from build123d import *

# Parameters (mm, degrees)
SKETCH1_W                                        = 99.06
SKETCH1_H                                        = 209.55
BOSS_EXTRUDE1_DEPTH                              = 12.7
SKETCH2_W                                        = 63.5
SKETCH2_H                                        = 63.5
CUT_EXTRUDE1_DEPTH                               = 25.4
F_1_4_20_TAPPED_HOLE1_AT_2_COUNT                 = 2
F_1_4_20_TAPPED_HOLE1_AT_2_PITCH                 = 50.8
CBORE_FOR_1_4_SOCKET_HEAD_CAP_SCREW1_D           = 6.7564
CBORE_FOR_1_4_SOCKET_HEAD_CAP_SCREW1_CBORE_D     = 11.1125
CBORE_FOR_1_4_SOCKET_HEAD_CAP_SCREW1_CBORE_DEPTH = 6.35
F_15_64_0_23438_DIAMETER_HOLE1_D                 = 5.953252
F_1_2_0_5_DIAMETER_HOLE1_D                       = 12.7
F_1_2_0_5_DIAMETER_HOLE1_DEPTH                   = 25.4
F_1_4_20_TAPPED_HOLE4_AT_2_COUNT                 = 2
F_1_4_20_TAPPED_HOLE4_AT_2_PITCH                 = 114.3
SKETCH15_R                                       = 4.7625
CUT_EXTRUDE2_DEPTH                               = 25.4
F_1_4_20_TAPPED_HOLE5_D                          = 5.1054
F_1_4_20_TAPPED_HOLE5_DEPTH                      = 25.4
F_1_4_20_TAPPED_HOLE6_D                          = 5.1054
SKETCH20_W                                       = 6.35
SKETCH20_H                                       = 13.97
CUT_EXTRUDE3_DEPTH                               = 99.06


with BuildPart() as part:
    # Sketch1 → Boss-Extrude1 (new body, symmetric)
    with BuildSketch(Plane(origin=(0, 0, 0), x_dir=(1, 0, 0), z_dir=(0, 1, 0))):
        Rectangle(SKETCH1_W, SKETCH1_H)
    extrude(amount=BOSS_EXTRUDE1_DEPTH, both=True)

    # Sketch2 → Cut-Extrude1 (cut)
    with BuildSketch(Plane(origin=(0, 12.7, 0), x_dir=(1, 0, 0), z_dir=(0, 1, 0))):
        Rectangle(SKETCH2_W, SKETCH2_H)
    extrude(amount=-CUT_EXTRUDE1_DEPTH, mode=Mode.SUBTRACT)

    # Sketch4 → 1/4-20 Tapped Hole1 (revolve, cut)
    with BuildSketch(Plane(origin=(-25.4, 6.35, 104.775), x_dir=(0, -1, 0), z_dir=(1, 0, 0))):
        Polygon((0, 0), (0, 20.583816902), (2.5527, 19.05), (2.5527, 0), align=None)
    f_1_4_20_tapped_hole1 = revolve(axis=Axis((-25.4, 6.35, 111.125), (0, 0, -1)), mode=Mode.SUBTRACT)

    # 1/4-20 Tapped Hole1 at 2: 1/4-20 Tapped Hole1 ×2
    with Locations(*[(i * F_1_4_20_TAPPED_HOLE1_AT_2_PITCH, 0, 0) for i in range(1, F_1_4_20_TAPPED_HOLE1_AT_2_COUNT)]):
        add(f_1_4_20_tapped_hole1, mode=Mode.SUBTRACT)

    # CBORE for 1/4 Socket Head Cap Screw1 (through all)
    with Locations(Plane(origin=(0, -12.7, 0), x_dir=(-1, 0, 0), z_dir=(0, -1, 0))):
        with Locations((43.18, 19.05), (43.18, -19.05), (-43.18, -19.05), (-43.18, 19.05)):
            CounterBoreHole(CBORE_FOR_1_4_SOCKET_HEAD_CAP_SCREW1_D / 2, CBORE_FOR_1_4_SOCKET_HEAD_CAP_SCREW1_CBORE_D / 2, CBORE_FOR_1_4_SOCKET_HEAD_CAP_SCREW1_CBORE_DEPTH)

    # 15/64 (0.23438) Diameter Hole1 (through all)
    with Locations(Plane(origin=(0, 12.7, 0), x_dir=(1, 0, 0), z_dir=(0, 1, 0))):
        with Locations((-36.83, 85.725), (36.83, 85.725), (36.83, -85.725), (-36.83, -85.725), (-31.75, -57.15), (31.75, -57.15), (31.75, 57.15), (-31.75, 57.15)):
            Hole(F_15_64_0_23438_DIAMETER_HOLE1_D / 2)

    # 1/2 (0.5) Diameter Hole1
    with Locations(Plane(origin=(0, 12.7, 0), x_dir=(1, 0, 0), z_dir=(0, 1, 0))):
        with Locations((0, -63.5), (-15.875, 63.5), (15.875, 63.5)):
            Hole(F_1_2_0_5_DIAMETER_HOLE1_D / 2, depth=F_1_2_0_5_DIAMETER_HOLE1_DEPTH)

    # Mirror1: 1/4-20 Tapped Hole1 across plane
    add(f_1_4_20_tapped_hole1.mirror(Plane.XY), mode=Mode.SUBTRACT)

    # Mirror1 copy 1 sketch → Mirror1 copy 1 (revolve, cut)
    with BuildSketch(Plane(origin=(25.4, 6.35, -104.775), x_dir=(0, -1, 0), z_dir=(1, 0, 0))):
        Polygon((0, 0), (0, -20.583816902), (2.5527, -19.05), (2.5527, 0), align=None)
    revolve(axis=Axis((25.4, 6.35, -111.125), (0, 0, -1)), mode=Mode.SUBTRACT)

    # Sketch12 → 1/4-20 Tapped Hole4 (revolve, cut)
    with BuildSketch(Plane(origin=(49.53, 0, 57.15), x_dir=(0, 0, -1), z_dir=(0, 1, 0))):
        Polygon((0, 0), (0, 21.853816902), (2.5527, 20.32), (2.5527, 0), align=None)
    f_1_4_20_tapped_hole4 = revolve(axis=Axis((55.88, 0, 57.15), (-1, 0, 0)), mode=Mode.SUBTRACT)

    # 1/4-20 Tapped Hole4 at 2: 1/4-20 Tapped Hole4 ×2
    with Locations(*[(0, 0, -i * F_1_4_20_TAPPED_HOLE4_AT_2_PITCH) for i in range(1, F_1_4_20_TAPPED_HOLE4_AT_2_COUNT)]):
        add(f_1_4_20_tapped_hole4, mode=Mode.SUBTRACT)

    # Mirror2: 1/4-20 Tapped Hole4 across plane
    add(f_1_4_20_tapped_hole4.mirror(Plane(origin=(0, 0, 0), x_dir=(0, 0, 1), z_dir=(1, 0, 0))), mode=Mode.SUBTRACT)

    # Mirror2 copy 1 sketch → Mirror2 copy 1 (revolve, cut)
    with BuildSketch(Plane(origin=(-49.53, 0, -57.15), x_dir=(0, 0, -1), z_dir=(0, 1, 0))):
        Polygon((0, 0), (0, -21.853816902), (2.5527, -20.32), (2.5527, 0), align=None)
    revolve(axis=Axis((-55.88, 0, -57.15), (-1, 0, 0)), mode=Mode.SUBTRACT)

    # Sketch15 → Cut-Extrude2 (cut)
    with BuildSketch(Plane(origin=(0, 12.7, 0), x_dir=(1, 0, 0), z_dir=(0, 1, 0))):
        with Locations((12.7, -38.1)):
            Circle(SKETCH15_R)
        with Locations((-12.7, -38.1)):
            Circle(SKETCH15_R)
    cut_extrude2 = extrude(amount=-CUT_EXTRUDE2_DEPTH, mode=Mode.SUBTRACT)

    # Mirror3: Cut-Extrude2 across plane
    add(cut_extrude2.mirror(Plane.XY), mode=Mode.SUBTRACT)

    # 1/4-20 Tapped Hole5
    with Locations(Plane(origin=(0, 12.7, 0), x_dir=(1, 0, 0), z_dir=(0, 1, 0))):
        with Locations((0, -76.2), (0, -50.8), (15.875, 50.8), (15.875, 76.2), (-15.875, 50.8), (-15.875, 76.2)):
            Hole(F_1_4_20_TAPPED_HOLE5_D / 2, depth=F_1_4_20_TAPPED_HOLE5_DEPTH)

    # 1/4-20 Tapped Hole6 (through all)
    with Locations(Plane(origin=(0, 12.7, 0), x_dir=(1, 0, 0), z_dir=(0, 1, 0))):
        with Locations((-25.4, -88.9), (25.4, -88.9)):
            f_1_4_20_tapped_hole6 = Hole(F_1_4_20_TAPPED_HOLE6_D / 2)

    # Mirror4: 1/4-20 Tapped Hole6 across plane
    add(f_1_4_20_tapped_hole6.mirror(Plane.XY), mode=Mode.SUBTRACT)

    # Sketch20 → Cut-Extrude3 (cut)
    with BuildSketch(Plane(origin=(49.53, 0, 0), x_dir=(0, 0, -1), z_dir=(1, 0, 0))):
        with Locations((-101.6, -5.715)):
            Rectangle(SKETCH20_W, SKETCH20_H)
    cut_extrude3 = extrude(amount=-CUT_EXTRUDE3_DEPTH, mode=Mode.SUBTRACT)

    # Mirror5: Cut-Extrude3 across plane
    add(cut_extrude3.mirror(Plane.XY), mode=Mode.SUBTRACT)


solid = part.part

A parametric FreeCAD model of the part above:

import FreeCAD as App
import Part
import Sketcher
from FreeCAD import Vector
Q = App.Units.Quantity


def add_polygon(sketch, points):
    """Adds a closed chain of lines whose ends are joined by coincident constraints."""
    first, n = sketch.GeometryCount, len(points)
    for a, b in zip(points, points[1:] + points[:1]):
        sketch.addGeometry(Part.LineSegment(App.Vector(*a, 0), App.Vector(*b, 0)), False)
    for i in range(n):
        sketch.addConstraint(Sketcher.Constraint("Coincident", first + i, 2, first + (i + 1) % n, 1))

doc = App.newDocument("Part")
body = doc.addObject("PartDesign::Body", "Body")

# Sketch on XZ plane
sketch1 = body.newObject("Sketcher::SketchObject", "Sketch")
sketch1.AttachmentSupport = (doc.getObject("XZ_Plane"), [""])
sketch1.MapMode = "FlatFace"
add_polygon(sketch1, [(-50, -105), (-50, 105), (50, 105), (50, -105)])  # lines 0-3
sketch1.addConstraint(Sketcher.Constraint("Vertical", 0))
sketch1.addConstraint(Sketcher.Constraint("Horizontal", 1))
sketch1.addConstraint(Sketcher.Constraint("Vertical", 2))
sketch1.addConstraint(Sketcher.Constraint("Horizontal", 3))
sketch1.addConstraint(Sketcher.Constraint("Symmetric", 0, 2, 2, 2, -1, 1))
sketch1.addConstraint(Sketcher.Constraint("DistanceX", 1, 1, 1, 2, Q("3.9 in")))
sketch1.addConstraint(Sketcher.Constraint("DistanceY", 0, 1, 0, 2, Q("8.25 in")))
pad1 = body.newObject("PartDesign::Pad", "Pad")
pad1.Profile = sketch1
pad1.Length = Q("1 in")
pad1.Midplane = True

# Sketch on XZ plane
sketch2 = body.newObject("Sketcher::SketchObject", "Sketch001")
sketch2.AttachmentSupport = (doc.getObject("XZ_Plane"), [""])
sketch2.MapMode = "FlatFace"
sketch2.AttachmentOffset = App.Placement(Vector(0, 0, -0.5 * 25.4), App.Rotation())
add_polygon(sketch2, [(-32, -32), (-32, 32), (32, 32), (32, -32)])  # lines 0-3
sketch2.addConstraint(Sketcher.Constraint("Vertical", 0))
sketch2.addConstraint(Sketcher.Constraint("Horizontal", 1))
sketch2.addConstraint(Sketcher.Constraint("Vertical", 2))
sketch2.addConstraint(Sketcher.Constraint("Horizontal", 3))
sketch2.addConstraint(Sketcher.Constraint("Symmetric", 0, 2, 2, 2, -1, 1))
sketch2.addConstraint(Sketcher.Constraint("Equal", 3, 0))
sketch2.addConstraint(Sketcher.Constraint("DistanceX", 1, 1, 1, 2, Q("2.5 in")))
pocket1 = body.newObject("PartDesign::Pocket", "Pocket")
pocket1.Profile = sketch2
pocket1.Length = Q("1 in")
pocket1.Reversed = True

# Sketch on YZ plane
sketch3 = body.newObject("Sketcher::SketchObject", "Sketch002")
sketch3.AttachmentSupport = (doc.getObject("YZ_Plane"), [""])
sketch3.MapMode = "FlatFace"
sketch3.AttachmentOffset = App.Placement(Vector(0, 0, -1 * 25.4), App.Rotation())
add_polygon(sketch3, [(6.3, 84.2), (6.3, 104.8), (3.8, 104.8), (3.8, 85.7)])  # lines 0-3
sketch3.addGeometry(Part.LineSegment(Vector(6.3, 104.8, 0), Vector(6.3, 84.2, 0)), True)  # axis
sketch3.addConstraint(Sketcher.Constraint("Vertical", 0))
sketch3.addConstraint(Sketcher.Constraint("Horizontal", 1))
sketch3.addConstraint(Sketcher.Constraint("Vertical", 2))
sketch3.addConstraint(Sketcher.Constraint("Vertical", 4))
sketch3.addConstraint(Sketcher.Constraint("Coincident", 4, 1, 0, 2))
sketch3.addConstraint(Sketcher.Constraint("Equal", 0, 4))
sketch3.addConstraint(Sketcher.Constraint("Angle", 3, Q("-31 deg")))
sketch3.addConstraint(Sketcher.Constraint("DistanceY", 2, 2, 2, 1, Q("0.75 in")))
sketch3.addConstraint(Sketcher.Constraint("DistanceX", -1, 1, 0, 2, Q("0.25 in")))
sketch3.addConstraint(Sketcher.Constraint("DistanceX", 1, 2, 1, 1, Q("0.1005 in")))
sketch3.addConstraint(Sketcher.Constraint("DistanceY", -1, 1, 0, 2, Q("4.125 in")))
groove = body.newObject("PartDesign::Groove", "Groove")
groove.Profile = sketch3
groove.ReferenceAxis = (sketch3, ["Axis0"])
groove.Angle = 360
doc.recompute()

linearpattern = body.newObject("PartDesign::LinearPattern", "LinearPattern")
linearpattern.Originals = [groove]
linearpattern.Direction = (doc.getObject("X_Axis"), [""])
linearpattern.Mode = "offset"
linearpattern.Offset = Q("2 in")
linearpattern.Occurrences = 2
body.Tip = linearpattern

# Sketch on XZ plane
sketch4 = body.newObject("Sketcher::SketchObject", "Sketch003")
sketch4.AttachmentSupport = (doc.getObject("XZ_Plane"), [""])
sketch4.MapMode = "FlatFace"
sketch4.AttachmentOffset = App.Placement(Vector(0, 0, 0.5 * 25.4), App.Rotation())
sketch4.addGeometry(Part.Circle(Vector(-43.2, -19.1, 0), Vector(0, 0, 1), 3.4), False)
sketch4.addGeometry(Part.Circle(Vector(-43.2, 19.1, 0), Vector(0, 0, 1), 3.4), False)
sketch4.addGeometry(Part.Circle(Vector(43.2, 19.1, 0), Vector(0, 0, 1), 3.4), False)
sketch4.addGeometry(Part.Circle(Vector(43.2, -19.1, 0), Vector(0, 0, 1), 3.4), False)
sketch4.addConstraint(Sketcher.Constraint("Equal", 0, 1))
sketch4.addConstraint(Sketcher.Constraint("Equal", 1, 2))
sketch4.addConstraint(Sketcher.Constraint("Equal", 2, 3))
sketch4.addConstraint(Sketcher.Constraint("Symmetric", 0, 3, 2, 3, -1, 1))
sketch4.addConstraint(Sketcher.Constraint("Symmetric", 1, 3, 3, 3, -1, 1))
sketch4.addConstraint(Sketcher.Constraint("Symmetric", 1, 3, 2, 3, -2))
sketch4.addConstraint(Sketcher.Constraint("Diameter", 0, Q("0.266 in")))
sketch4.addConstraint(Sketcher.Constraint("DistanceX", 0, 3, -1, 1, Q("1.7 in")))
sketch4.addConstraint(Sketcher.Constraint("DistanceY", 0, 3, 1, 3, Q("1.5 in")))
doc.recompute()
hole = body.newObject("PartDesign::Hole", "Hole")
hole.Profile = sketch4
hole.ThreadType = "None"
hole.Diameter = Q("0.266 in")
hole.DepthType = "ThroughAll"
hole.HoleCutType = "Counterbore"
hole.HoleCutDiameter = Q("0.4375 in")
hole.HoleCutDepth = Q("0.25 in")

# Sketch on XZ plane
sketch5 = body.newObject("Sketcher::SketchObject", "Sketch004")
sketch5.AttachmentSupport = (doc.getObject("XZ_Plane"), [""])
sketch5.MapMode = "FlatFace"
sketch5.AttachmentOffset = App.Placement(Vector(0, 0, -0.5 * 25.4), App.Rotation())
sketch5.addGeometry(Part.Circle(Vector(-36.8, -85.7, 0), Vector(0, 0, 1), 3), False)
sketch5.addGeometry(Part.Circle(Vector(36.8, -85.7, 0), Vector(0, 0, 1), 3), False)
sketch5.addGeometry(Part.Circle(Vector(36.8, 85.7, 0), Vector(0, 0, 1), 3), False)
sketch5.addGeometry(Part.Circle(Vector(-36.8, 85.7, 0), Vector(0, 0, 1), 3), False)
sketch5.addGeometry(Part.Circle(Vector(-31.8, 57.1, 0), Vector(0, 0, 1), 3), False)
sketch5.addGeometry(Part.Circle(Vector(31.8, 57.1, 0), Vector(0, 0, 1), 3), False)
sketch5.addGeometry(Part.Circle(Vector(31.8, -57.1, 0), Vector(0, 0, 1), 3), False)
sketch5.addGeometry(Part.Circle(Vector(-31.8, -57.1, 0), Vector(0, 0, 1), 3), False)
sketch5.addConstraint(Sketcher.Constraint("Equal", 0, 1))
sketch5.addConstraint(Sketcher.Constraint("Equal", 1, 2))
sketch5.addConstraint(Sketcher.Constraint("Equal", 2, 3))
sketch5.addConstraint(Sketcher.Constraint("Equal", 3, 4))
sketch5.addConstraint(Sketcher.Constraint("Equal", 4, 5))
sketch5.addConstraint(Sketcher.Constraint("Equal", 5, 6))
sketch5.addConstraint(Sketcher.Constraint("Equal", 6, 7))
sketch5.addConstraint(Sketcher.Constraint("Symmetric", 0, 3, 2, 3, -1, 1))
sketch5.addConstraint(Sketcher.Constraint("Symmetric", 1, 3, 3, 3, -1, 1))
sketch5.addConstraint(Sketcher.Constraint("Symmetric", 4, 3, 6, 3, -1, 1))
sketch5.addConstraint(Sketcher.Constraint("Symmetric", 5, 3, 7, 3, -1, 1))
sketch5.addConstraint(Sketcher.Constraint("Symmetric", 0, 3, 1, 3, -2))
sketch5.addConstraint(Sketcher.Constraint("Symmetric", 4, 3, 5, 3, -2))
sketch5.addConstraint(Sketcher.Constraint("DistanceX", 0, 3, 1, 3, Q("2.9 in")))
sketch5.addConstraint(Sketcher.Constraint("DistanceX", 3, 3, 4, 3, Q("0.2 in")))
sketch5.addConstraint(Sketcher.Constraint("DistanceY", 6, 3, 5, 3, Q("4.5 in")))
sketch5.addConstraint(Sketcher.Constraint("DistanceY", 1, 3, 2, 3, Q("6.75 in")))
sketch5.addConstraint(Sketcher.Constraint("Diameter", 0, Q("5.953252 mm")))
doc.recompute()
hole2 = body.newObject("PartDesign::Hole", "Hole001")
hole2.Profile = sketch5
hole2.ThreadType = "None"
hole2.Diameter = 5.953252
hole2.DepthType = "ThroughAll"
hole2.Reversed = True

# Sketch on XZ plane
sketch6 = body.newObject("Sketcher::SketchObject", "Sketch005")
sketch6.AttachmentSupport = (doc.getObject("XZ_Plane"), [""])
sketch6.MapMode = "FlatFace"
sketch6.AttachmentOffset = App.Placement(Vector(0, 0, -0.5 * 25.4), App.Rotation())
sketch6.addGeometry(Part.Circle(Vector(0, 64, 0), Vector(0, 0, 1), 6), False)
sketch6.addGeometry(Part.Circle(Vector(-16, -64, 0), Vector(0, 0, 1), 6), False)
sketch6.addGeometry(Part.Circle(Vector(16, -64, 0), Vector(0, 0, 1), 6), False)
sketch6.addConstraint(Sketcher.Constraint("Equal", 0, 1))
sketch6.addConstraint(Sketcher.Constraint("Equal", 1, 2))
sketch6.addConstraint(Sketcher.Constraint("Symmetric", 1, 3, 2, 3, -2))
sketch6.addConstraint(Sketcher.Constraint("PointOnObject", 0, 3, -2))
sketch6.addConstraint(Sketcher.Constraint("Diameter", 0, Q("0.5 in")))
sketch6.addConstraint(Sketcher.Constraint("DistanceY", 1, 3, 0, 3, Q("5 in")))
sketch6.addConstraint(Sketcher.Constraint("DistanceY", -1, 1, 0, 3, Q("2.5 in")))
sketch6.addConstraint(Sketcher.Constraint("DistanceX", 1, 3, 2, 3, Q("1.25 in")))
doc.recompute()
hole3 = body.newObject("PartDesign::Hole", "Hole002")
hole3.Profile = sketch6
hole3.ThreadType = "None"
hole3.Diameter = Q("0.5 in")
hole3.DepthType = "Dimension"
hole3.Depth = Q("1 in")
hole3.DrillPoint = "Flat"
hole3.Reversed = True
doc.recompute()

mirrored = body.newObject("PartDesign::Mirrored", "Mirrored")
mirrored.Originals = [groove]
mirrored.MirrorPlane = (doc.getObject("XY_Plane"), [""])
body.Tip = mirrored

# Sketch on YZ plane
sketch7 = body.newObject("Sketcher::SketchObject", "Sketch006")
sketch7.AttachmentSupport = (doc.getObject("YZ_Plane"), [""])
sketch7.MapMode = "FlatFace"
sketch7.AttachmentOffset = App.Placement(Vector(0, 0, 1 * 25.4), App.Rotation())
add_polygon(sketch7, [(6.3, -104.8), (6.3, -84.2), (3.8, -85.7), (3.8, -104.8)])  # lines 0-3
sketch7.addGeometry(Part.LineSegment(Vector(6.3, -84.2, 0), Vector(6.3, -104.8, 0)), True)  # axis
sketch7.addConstraint(Sketcher.Constraint("Vertical", 0))
sketch7.addConstraint(Sketcher.Constraint("Vertical", 2))
sketch7.addConstraint(Sketcher.Constraint("Horizontal", 3))
sketch7.addConstraint(Sketcher.Constraint("Vertical", 4))
sketch7.addConstraint(Sketcher.Constraint("Coincident", 4, 1, 0, 2))
sketch7.addConstraint(Sketcher.Constraint("Horizontal", 2, 2, 4, 2))
sketch7.addConstraint(Sketcher.Constraint("Angle", 1, Q("-149 deg")))
sketch7.addConstraint(Sketcher.Constraint("DistanceY", 2, 2, 2, 1, Q("0.75 in")))
sketch7.addConstraint(Sketcher.Constraint("DistanceX", -1, 1, 0, 2, Q("0.25 in")))
sketch7.addConstraint(Sketcher.Constraint("DistanceX", 3, 1, 3, 2, Q("0.1005 in")))
sketch7.addConstraint(Sketcher.Constraint("DistanceY", 1, 2, -1, 1, Q("3.375 in")))
groove2 = body.newObject("PartDesign::Groove", "Groove001")
groove2.Profile = sketch7
groove2.ReferenceAxis = (sketch7, ["Axis0"])
groove2.Angle = 360

# Sketch on XZ plane
sketch8 = body.newObject("Sketcher::SketchObject", "Sketch007")
sketch8.AttachmentSupport = (doc.getObject("XZ_Plane"), [""])
sketch8.MapMode = "FlatFace"
add_polygon(sketch8, [(27.7, 57.1), (49.5, 57.1), (49.5, 54.6), (29.2, 54.6)])  # lines 0-3
sketch8.addGeometry(Part.LineSegment(Vector(49.5, 57.1, 0), Vector(27.7, 57.1, 0)), True)  # axis
sketch8.addConstraint(Sketcher.Constraint("Horizontal", 0))
sketch8.addConstraint(Sketcher.Constraint("Vertical", 1))
sketch8.addConstraint(Sketcher.Constraint("Horizontal", 2))
sketch8.addConstraint(Sketcher.Constraint("Horizontal", 4))
sketch8.addConstraint(Sketcher.Constraint("Coincident", 4, 1, 0, 2))
sketch8.addConstraint(Sketcher.Constraint("Equal", 0, 4))
sketch8.addConstraint(Sketcher.Constraint("DistanceX", 2, 2, 2, 1, Q("0.8 in")))
sketch8.addConstraint(Sketcher.Constraint("Angle", 3, Q("121 deg")))
sketch8.addConstraint(Sketcher.Constraint("DistanceX", -1, 1, 0, 2, Q("1.95 in")))
sketch8.addConstraint(Sketcher.Constraint("DistanceY", -1, 1, 0, 2, Q("2.25 in")))
sketch8.addConstraint(Sketcher.Constraint("DistanceY", 1, 2, 1, 1, Q("0.1005 in")))
groove3 = body.newObject("PartDesign::Groove", "Groove002")
groove3.Profile = sketch8
groove3.ReferenceAxis = (sketch8, ["Axis0"])
groove3.Angle = 360
doc.recompute()

linearpattern2 = body.newObject("PartDesign::LinearPattern", "LinearPattern001")
linearpattern2.Originals = [groove3]
linearpattern2.Direction = (doc.getObject("Z_Axis"), [""])
linearpattern2.Mode = "offset"
linearpattern2.Offset = Q("4.5 in")
linearpattern2.Occurrences = 2
linearpattern2.Reversed = True
body.Tip = linearpattern2
doc.recompute()

mirrored2 = body.newObject("PartDesign::Mirrored", "Mirrored001")
mirrored2.Originals = [groove3]
mirrored2.MirrorPlane = (doc.getObject("YZ_Plane"), [""])
body.Tip = mirrored2

# Sketch on XZ plane
sketch9 = body.newObject("Sketcher::SketchObject", "Sketch008")
sketch9.AttachmentSupport = (doc.getObject("XZ_Plane"), [""])
sketch9.MapMode = "FlatFace"
add_polygon(sketch9, [(-49.5, -57.1), (-27.7, -57.1), (-29.2, -59.7), (-49.5, -59.7)])  # lines 0-3
sketch9.addGeometry(Part.LineSegment(Vector(-27.7, -57.1, 0), Vector(-49.5, -57.1, 0)), True)  # axis
sketch9.addConstraint(Sketcher.Constraint("Horizontal", 0))
sketch9.addConstraint(Sketcher.Constraint("Horizontal", 2))
sketch9.addConstraint(Sketcher.Constraint("Vertical", 3))
sketch9.addConstraint(Sketcher.Constraint("Horizontal", 4))
sketch9.addConstraint(Sketcher.Constraint("Coincident", 4, 1, 0, 2))
sketch9.addConstraint(Sketcher.Constraint("Vertical", 2, 2, 4, 2))
sketch9.addConstraint(Sketcher.Constraint("DistanceX", 2, 2, 2, 1, Q("0.8 in")))
sketch9.addConstraint(Sketcher.Constraint("Angle", 1, Q("-121 deg")))
sketch9.addConstraint(Sketcher.Constraint("DistanceY", 0, 2, -1, 1, Q("2.25 in")))
sketch9.addConstraint(Sketcher.Constraint("DistanceX", 1, 2, -1, 1, Q("1.15 in")))
sketch9.addConstraint(Sketcher.Constraint("DistanceY", 3, 1, 3, 2, Q("0.1005 in")))
groove4 = body.newObject("PartDesign::Groove", "Groove003")
groove4.Profile = sketch9
groove4.ReferenceAxis = (sketch9, ["Axis0"])
groove4.Angle = 360

# Sketch on XZ plane
sketch10 = body.newObject("Sketcher::SketchObject", "Sketch009")
sketch10.AttachmentSupport = (doc.getObject("XZ_Plane"), [""])
sketch10.MapMode = "FlatFace"
sketch10.AttachmentOffset = App.Placement(Vector(0, 0, -0.5 * 25.4), App.Rotation())
sketch10.addGeometry(Part.Circle(Vector(12.7, 38.1, 0), Vector(0, 0, 1), 4.8), False)
sketch10.addGeometry(Part.Circle(Vector(-12.7, 38.1, 0), Vector(0, 0, 1), 4.8), False)
sketch10.addConstraint(Sketcher.Constraint("Equal", 0, 1))
sketch10.addConstraint(Sketcher.Constraint("Symmetric", 0, 3, 1, 3, -2))
sketch10.addConstraint(Sketcher.Constraint("Diameter", 0, Q("0.375 in")))
sketch10.addConstraint(Sketcher.Constraint("DistanceX", 1, 3, 0, 3, Q("1 in")))
sketch10.addConstraint(Sketcher.Constraint("DistanceY", -1, 1, 0, 3, Q("1.5 in")))
pocket2 = body.newObject("PartDesign::Pocket", "Pocket001")
pocket2.Profile = sketch10
pocket2.Length = Q("1 in")
pocket2.Reversed = True
doc.recompute()

mirrored3 = body.newObject("PartDesign::Mirrored", "Mirrored002")
mirrored3.Originals = [pocket2]
mirrored3.MirrorPlane = (doc.getObject("XY_Plane"), [""])
body.Tip = mirrored3

# Sketch on XZ plane
sketch11 = body.newObject("Sketcher::SketchObject", "Sketch010")
sketch11.AttachmentSupport = (doc.getObject("XZ_Plane"), [""])
sketch11.MapMode = "FlatFace"
sketch11.AttachmentOffset = App.Placement(Vector(0, 0, -0.5 * 25.4), App.Rotation())
sketch11.addGeometry(Part.Circle(Vector(0, 76.2, 0), Vector(0, 0, 1), 2.6), False)
sketch11.addGeometry(Part.Circle(Vector(0, 50.8, 0), Vector(0, 0, 1), 2.6), False)
sketch11.addGeometry(Part.Circle(Vector(15.9, -50.8, 0), Vector(0, 0, 1), 2.6), False)
sketch11.addGeometry(Part.Circle(Vector(15.9, -76.2, 0), Vector(0, 0, 1), 2.6), False)
sketch11.addGeometry(Part.Circle(Vector(-15.9, -50.8, 0), Vector(0, 0, 1), 2.6), False)
sketch11.addGeometry(Part.Circle(Vector(-15.9, -76.2, 0), Vector(0, 0, 1), 2.6), False)
sketch11.addConstraint(Sketcher.Constraint("Equal", 0, 1))
sketch11.addConstraint(Sketcher.Constraint("Equal", 1, 2))
sketch11.addConstraint(Sketcher.Constraint("Equal", 2, 3))
sketch11.addConstraint(Sketcher.Constraint("Equal", 3, 4))
sketch11.addConstraint(Sketcher.Constraint("Equal", 4, 5))
sketch11.addConstraint(Sketcher.Constraint("Symmetric", 2, 3, 4, 3, -2))
sketch11.addConstraint(Sketcher.Constraint("Symmetric", 3, 3, 5, 3, -2))
sketch11.addConstraint(Sketcher.Constraint("PointOnObject", 0, 3, -2))
sketch11.addConstraint(Sketcher.Constraint("PointOnObject", 1, 3, -2))
sketch11.addConstraint(Sketcher.Constraint("Vertical", 2, 3, 3, 3))
sketch11.addConstraint(Sketcher.Constraint("Diameter", 0, Q("0.201 in")))
sketch11.addConstraint(Sketcher.Constraint("DistanceY", -1, 1, 0, 3, Q("3 in")))
sketch11.addConstraint(Sketcher.Constraint("DistanceY", -1, 1, 1, 3, Q("2 in")))
sketch11.addConstraint(Sketcher.Constraint("DistanceY", 2, 3, -1, 1, Q("2 in")))
sketch11.addConstraint(Sketcher.Constraint("DistanceY", 3, 3, -1, 1, Q("3 in")))
sketch11.addConstraint(Sketcher.Constraint("DistanceX", 4, 3, 2, 3, Q("1.25 in")))
doc.recompute()
hole4 = body.newObject("PartDesign::Hole", "Hole003")
hole4.Profile = sketch11
hole4.ThreadType = "None"
hole4.Diameter = Q("0.201 in")
hole4.DepthType = "Dimension"
hole4.Depth = Q("1 in")
hole4.DrillPoint = "Flat"
hole4.Reversed = True

# Sketch on XZ plane
sketch12 = body.newObject("Sketcher::SketchObject", "Sketch011")
sketch12.AttachmentSupport = (doc.getObject("XZ_Plane"), [""])
sketch12.MapMode = "FlatFace"
sketch12.AttachmentOffset = App.Placement(Vector(0, 0, -0.5 * 25.4), App.Rotation())
sketch12.addGeometry(Part.Circle(Vector(-25.4, 88.9, 0), Vector(0, 0, 1), 2.6), False)
sketch12.addGeometry(Part.Circle(Vector(25.4, 88.9, 0), Vector(0, 0, 1), 2.6), False)
sketch12.addConstraint(Sketcher.Constraint("Equal", 0, 1))
sketch12.addConstraint(Sketcher.Constraint("Symmetric", 0, 3, 1, 3, -2))
sketch12.addConstraint(Sketcher.Constraint("Diameter", 0, Q("0.201 in")))
sketch12.addConstraint(Sketcher.Constraint("DistanceX", 0, 3, -1, 1, Q("1 in")))
sketch12.addConstraint(Sketcher.Constraint("DistanceY", -1, 1, 0, 3, Q("3.5 in")))
doc.recompute()
hole5 = body.newObject("PartDesign::Hole", "Hole004")
hole5.Profile = sketch12
hole5.ThreadType = "None"
hole5.Diameter = Q("0.201 in")
hole5.DepthType = "ThroughAll"
hole5.Reversed = True
doc.recompute()

mirrored4 = body.newObject("PartDesign::Mirrored", "Mirrored003")
mirrored4.Originals = [hole5]
mirrored4.MirrorPlane = (doc.getObject("XY_Plane"), [""])
body.Tip = mirrored4

# Sketch on YZ plane
sketch13 = body.newObject("Sketcher::SketchObject", "Sketch012")
sketch13.AttachmentSupport = (doc.getObject("YZ_Plane"), [""])
sketch13.MapMode = "FlatFace"
sketch13.AttachmentOffset = App.Placement(Vector(0, 0, 1.95 * 25.4), App.Rotation())
add_polygon(sketch13, [(1, 105), (-13, 105), (-13, 98), (1, 98)])  # lines 0-3
sketch13.addConstraint(Sketcher.Constraint("Horizontal", 0))
sketch13.addConstraint(Sketcher.Constraint("Vertical", 1))
sketch13.addConstraint(Sketcher.Constraint("Horizontal", 2))
sketch13.addConstraint(Sketcher.Constraint("Vertical", 3))
sketch13.addConstraint(Sketcher.Constraint("DistanceX", 0, 2, 0, 1, Q("0.55 in")))
sketch13.addConstraint(Sketcher.Constraint("DistanceY", 1, 2, 1, 1, Q("0.25 in")))
sketch13.addConstraint(Sketcher.Constraint("DistanceX", 0, 2, -1, 1, Q("0.5 in")))
sketch13.addConstraint(Sketcher.Constraint("DistanceY", -1, 1, 0, 2, Q("4.125 in")))
pocket3 = body.newObject("PartDesign::Pocket", "Pocket002")
pocket3.Profile = sketch13
pocket3.Length = Q("3.9 in")
doc.recompute()

mirrored5 = body.newObject("PartDesign::Mirrored", "Mirrored004")
mirrored5.Originals = [pocket3]
mirrored5.MirrorPlane = (doc.getObject("XY_Plane"), [""])
body.Tip = mirrored5

doc.recompute()
